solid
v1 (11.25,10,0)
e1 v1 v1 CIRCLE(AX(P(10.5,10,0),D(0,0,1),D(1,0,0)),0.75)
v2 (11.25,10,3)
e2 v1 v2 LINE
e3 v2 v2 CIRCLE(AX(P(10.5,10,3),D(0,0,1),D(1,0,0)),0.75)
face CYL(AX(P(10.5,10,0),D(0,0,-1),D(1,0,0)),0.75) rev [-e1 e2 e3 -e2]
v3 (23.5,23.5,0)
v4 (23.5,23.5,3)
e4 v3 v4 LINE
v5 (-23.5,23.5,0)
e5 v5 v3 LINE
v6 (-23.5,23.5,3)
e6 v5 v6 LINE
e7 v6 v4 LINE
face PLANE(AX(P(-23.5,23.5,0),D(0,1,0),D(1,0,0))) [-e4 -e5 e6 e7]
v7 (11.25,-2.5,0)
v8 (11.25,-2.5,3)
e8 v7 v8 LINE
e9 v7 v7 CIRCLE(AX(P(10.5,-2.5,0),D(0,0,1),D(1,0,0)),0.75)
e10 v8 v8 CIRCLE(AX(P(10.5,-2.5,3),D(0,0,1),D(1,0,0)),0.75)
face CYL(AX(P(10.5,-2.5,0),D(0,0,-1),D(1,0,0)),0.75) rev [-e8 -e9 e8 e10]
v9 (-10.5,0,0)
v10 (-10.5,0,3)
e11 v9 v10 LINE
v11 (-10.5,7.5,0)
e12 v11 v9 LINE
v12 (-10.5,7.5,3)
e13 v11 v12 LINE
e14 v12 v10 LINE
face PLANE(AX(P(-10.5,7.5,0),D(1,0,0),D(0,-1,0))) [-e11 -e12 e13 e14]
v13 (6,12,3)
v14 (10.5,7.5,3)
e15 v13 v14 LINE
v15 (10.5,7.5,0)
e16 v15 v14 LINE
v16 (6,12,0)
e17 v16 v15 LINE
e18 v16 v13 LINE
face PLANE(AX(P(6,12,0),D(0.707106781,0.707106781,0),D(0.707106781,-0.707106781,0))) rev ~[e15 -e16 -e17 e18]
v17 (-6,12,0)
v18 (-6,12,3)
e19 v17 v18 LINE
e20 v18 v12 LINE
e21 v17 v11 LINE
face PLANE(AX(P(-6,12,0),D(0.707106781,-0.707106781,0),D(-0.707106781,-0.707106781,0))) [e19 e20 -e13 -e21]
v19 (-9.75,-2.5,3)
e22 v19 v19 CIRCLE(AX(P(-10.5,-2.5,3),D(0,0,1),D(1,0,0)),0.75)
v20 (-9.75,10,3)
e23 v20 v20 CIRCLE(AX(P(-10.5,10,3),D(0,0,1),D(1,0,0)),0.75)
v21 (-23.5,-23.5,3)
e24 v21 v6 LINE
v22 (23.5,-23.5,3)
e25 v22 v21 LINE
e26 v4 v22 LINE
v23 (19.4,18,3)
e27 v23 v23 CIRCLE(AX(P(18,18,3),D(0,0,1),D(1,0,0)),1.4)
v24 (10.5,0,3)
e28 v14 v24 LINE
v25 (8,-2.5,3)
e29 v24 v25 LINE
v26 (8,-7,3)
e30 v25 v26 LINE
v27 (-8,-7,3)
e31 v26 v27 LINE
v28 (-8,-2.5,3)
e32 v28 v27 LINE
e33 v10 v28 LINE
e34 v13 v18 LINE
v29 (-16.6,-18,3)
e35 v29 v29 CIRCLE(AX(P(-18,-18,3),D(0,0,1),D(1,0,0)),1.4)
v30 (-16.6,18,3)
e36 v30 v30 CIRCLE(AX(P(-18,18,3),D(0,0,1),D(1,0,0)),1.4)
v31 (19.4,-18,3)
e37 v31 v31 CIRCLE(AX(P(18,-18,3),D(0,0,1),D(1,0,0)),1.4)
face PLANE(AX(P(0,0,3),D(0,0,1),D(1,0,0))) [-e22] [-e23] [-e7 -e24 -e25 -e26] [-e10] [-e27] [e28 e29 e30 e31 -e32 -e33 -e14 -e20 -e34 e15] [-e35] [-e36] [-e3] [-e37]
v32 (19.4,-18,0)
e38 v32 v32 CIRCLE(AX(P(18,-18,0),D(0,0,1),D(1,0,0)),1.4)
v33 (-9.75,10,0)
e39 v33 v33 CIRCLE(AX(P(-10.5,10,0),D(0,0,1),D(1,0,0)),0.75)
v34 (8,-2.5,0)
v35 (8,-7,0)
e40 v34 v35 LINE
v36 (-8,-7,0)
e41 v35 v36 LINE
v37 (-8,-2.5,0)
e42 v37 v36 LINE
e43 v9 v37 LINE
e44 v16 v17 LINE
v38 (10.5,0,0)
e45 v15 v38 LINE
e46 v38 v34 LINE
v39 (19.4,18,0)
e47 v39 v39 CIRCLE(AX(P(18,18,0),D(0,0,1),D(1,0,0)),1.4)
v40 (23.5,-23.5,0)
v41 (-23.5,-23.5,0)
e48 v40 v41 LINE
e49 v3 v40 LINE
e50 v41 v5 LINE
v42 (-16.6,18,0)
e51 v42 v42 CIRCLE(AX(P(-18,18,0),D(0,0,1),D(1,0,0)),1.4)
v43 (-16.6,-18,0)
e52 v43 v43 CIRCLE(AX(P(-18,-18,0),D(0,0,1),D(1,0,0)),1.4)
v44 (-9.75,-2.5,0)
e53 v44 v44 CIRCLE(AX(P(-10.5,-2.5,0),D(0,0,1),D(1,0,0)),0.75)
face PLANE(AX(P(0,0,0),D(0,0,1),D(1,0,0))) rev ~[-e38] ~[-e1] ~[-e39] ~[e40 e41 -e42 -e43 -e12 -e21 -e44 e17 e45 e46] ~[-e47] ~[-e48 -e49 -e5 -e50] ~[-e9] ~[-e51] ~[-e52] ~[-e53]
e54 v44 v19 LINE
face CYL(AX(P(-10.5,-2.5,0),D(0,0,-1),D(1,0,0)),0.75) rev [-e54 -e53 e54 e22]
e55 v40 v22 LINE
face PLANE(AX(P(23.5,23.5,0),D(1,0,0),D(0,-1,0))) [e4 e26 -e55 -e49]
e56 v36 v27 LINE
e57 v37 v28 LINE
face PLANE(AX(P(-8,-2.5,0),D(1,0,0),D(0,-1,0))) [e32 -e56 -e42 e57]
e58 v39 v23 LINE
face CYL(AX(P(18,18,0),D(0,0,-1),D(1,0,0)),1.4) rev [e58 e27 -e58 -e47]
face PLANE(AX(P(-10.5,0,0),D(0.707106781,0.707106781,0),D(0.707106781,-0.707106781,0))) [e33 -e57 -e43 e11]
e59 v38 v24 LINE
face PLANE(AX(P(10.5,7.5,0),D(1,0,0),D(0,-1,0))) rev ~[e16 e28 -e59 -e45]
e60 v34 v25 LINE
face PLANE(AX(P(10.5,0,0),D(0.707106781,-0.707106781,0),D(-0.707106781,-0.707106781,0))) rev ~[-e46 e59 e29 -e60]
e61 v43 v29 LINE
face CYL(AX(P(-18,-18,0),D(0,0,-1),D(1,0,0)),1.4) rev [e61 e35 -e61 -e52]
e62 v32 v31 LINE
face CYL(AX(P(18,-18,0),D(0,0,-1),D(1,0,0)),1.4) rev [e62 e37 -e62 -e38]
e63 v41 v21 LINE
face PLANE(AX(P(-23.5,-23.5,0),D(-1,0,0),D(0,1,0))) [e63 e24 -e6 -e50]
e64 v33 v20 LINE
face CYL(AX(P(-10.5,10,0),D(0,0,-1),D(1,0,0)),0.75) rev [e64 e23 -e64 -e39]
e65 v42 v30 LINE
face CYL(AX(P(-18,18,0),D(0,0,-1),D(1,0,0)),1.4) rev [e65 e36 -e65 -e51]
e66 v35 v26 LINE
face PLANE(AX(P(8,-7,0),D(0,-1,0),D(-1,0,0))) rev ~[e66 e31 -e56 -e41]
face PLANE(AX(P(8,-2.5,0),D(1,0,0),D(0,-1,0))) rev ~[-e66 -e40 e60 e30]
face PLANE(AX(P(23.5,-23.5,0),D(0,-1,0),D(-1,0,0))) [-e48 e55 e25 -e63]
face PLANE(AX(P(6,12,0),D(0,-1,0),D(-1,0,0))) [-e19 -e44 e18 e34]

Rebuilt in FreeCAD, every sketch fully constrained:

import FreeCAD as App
import Part
import Sketcher
from FreeCAD import Vector

doc = App.newDocument("Part")
body = doc.addObject("PartDesign::Body", "Body")

# Sketch on XY plane
sketch1 = body.newObject("Sketcher::SketchObject", "Sketch")
sketch1.AttachmentSupport = (doc.getObject("XY_Plane"), [""])
sketch1.MapMode = "FlatFace"
sketch1.addGeometry([
    Part.LineSegment(Vector(23.5, -23.5, 0), Vector(23.5, 23.5, 0)),  # 0
    Part.LineSegment(Vector(23.5, 23.5, 0), Vector(-23.5, 23.5, 0)),  # 1
    Part.LineSegment(Vector(-23.5, 23.5, 0), Vector(-23.5, -23.5, 0)),  # 2
    Part.LineSegment(Vector(-23.5, -23.5, 0), Vector(23.5, -23.5, 0)),  # 3
    Part.Circle(Vector(-18, -18, 0), Vector(0, 0, 1), 1.4),  # 4
    Part.Circle(Vector(-10.5, -2.5, 0), Vector(0, 0, 1), 0.75),  # 5
    Part.Circle(Vector(18, -18, 0), Vector(0, 0, 1), 1.4),  # 6
    Part.Circle(Vector(10.5, -2.5, 0), Vector(0, 0, 1), 0.75),  # 7
    Part.Circle(Vector(-10.5, 10, 0), Vector(0, 0, 1), 0.75),  # 8
    Part.Circle(Vector(-18, 18, 0), Vector(0, 0, 1), 1.4),  # 9
    Part.LineSegment(Vector(-6, 12, 0), Vector(6, 12, 0)),  # 10
    Part.LineSegment(Vector(6, 12, 0), Vector(10.5, 7.5, 0)),  # 11
    Part.LineSegment(Vector(10.5, 7.5, 0), Vector(10.5, 0, 0)),  # 12
    Part.LineSegment(Vector(10.5, 0, 0), Vector(8, -2.5, 0)),  # 13
    Part.LineSegment(Vector(8, -2.5, 0), Vector(8, -7, 0)),  # 14
    Part.LineSegment(Vector(8, -7, 0), Vector(-8, -7, 0)),  # 15
    Part.LineSegment(Vector(-8, -7, 0), Vector(-8, -2.5, 0)),  # 16
    Part.LineSegment(Vector(-8, -2.5, 0), Vector(-10.5, 0, 0)),  # 17
    Part.LineSegment(Vector(-10.5, 0, 0), Vector(-10.5, 7.5, 0)),  # 18
    Part.LineSegment(Vector(-10.5, 7.5, 0), Vector(-6, 12, 0)),  # 19
    Part.Circle(Vector(10.5, 10, 0), Vector(0, 0, 1), 0.75),  # 20
    Part.Circle(Vector(18, 18, 0), Vector(0, 0, 1), 1.4),  # 21
], False)
sketch1.addConstraint([
    Sketcher.Constraint("Coincident", 0, 2, 1, 1),
    Sketcher.Constraint("Coincident", 1, 2, 2, 1),
    Sketcher.Constraint("Coincident", 2, 2, 3, 1),
    Sketcher.Constraint("Coincident", 3, 2, 0, 1),
    Sketcher.Constraint("Coincident", 10, 2, 11, 1),
    Sketcher.Constraint("Coincident", 11, 2, 12, 1),
    Sketcher.Constraint("Coincident", 12, 2, 13, 1),
    Sketcher.Constraint("Coincident", 13, 2, 14, 1),
    Sketcher.Constraint("Coincident", 14, 2, 15, 1),
    Sketcher.Constraint("Coincident", 15, 2, 16, 1),
    Sketcher.Constraint("Coincident", 16, 2, 17, 1),
    Sketcher.Constraint("Coincident", 17, 2, 18, 1),
    Sketcher.Constraint("Coincident", 18, 2, 19, 1),
    Sketcher.Constraint("Coincident", 19, 2, 10, 1),
    Sketcher.Constraint("Vertical", 0),
    Sketcher.Constraint("Horizontal", 1),
    Sketcher.Constraint("Vertical", 2),
    Sketcher.Constraint("Horizontal", 3),
    Sketcher.Constraint("Horizontal", 10),
    Sketcher.Constraint("Vertical", 12),
    Sketcher.Constraint("Vertical", 14),
    Sketcher.Constraint("Horizontal", 15),
    Sketcher.Constraint("Vertical", 16),
    Sketcher.Constraint("Vertical", 18),
    Sketcher.Constraint("Equal", 4, 6),
    Sketcher.Constraint("Equal", 5, 7),
    Sketcher.Constraint("Equal", 7, 8),
    Sketcher.Constraint("Equal", 6, 9),
    Sketcher.Constraint("Equal", 8, 20),
    Sketcher.Constraint("Equal", 9, 21),
    Sketcher.Constraint("Symmetric", 6, 3, 9, 3, -1, 1),
    Sketcher.Constraint("Symmetric", 4, 3, 21, 3, -1, 1),
    Sketcher.Constraint("Symmetric", 0, 2, 2, 2, -1, 1),
    Sketcher.Constraint("Symmetric", 12, 2, 17, 2, -1, 1),
    Sketcher.Constraint("Symmetric", 4, 3, 6, 3, -2),
    Sketcher.Constraint("Symmetric", 5, 3, 7, 3, -2),
    Sketcher.Constraint("Symmetric", 8, 3, 20, 3, -2),
    Sketcher.Constraint("Symmetric", 13, 2, 16, 2, -2),
    Sketcher.Constraint("PointOnObject", 12, 2, -1),
    Sketcher.Constraint("Perpendicular", 11, 13),
    Sketcher.Constraint("Perpendicular", 13, 17),
    Sketcher.Constraint("Perpendicular", 17, 19),
    Sketcher.Constraint("Horizontal", 7, 3, 13, 2),
    Sketcher.Constraint("Horizontal", 11, 2, 18, 2),
    Sketcher.Constraint("Vertical", 5, 3, 8, 3),
    Sketcher.Constraint("Vertical", 20, 3, 11, 2),
    Sketcher.Constraint("Equal", 3, 0),
    Sketcher.Constraint("Diameter", 4, 2.8),
    Sketcher.Constraint("Diameter", 5, 1.5),
    Sketcher.Constraint("DistanceX", 1, 2, 1, 1, 47.0),
    Sketcher.Constraint("DistanceX", 10, 1, 10, 2, 12.0),
    Sketcher.Constraint("DistanceX", 15, 2, 15, 1, 16.0),
    Sketcher.Constraint("DistanceY", 12, 2, 12, 1, 7.5),
    Sketcher.Constraint("DistanceY", 14, 2, 14, 1, 4.5),
    Sketcher.Constraint("DistanceX", 4, 3, -1, 1, 18.0),
    Sketcher.Constraint("DistanceY", 4, 3, -1, 1, 18.0),
    Sketcher.Constraint("DistanceY", -1, 1, 8, 3, 10.0),
    Sketcher.Constraint("DistanceY", -1, 1, 10, 2, 12.0),
])
pad1 = body.newObject("PartDesign::Pad", "Pad")
pad1.Profile = sketch1
pad1.Length = 3

doc.recompute()
